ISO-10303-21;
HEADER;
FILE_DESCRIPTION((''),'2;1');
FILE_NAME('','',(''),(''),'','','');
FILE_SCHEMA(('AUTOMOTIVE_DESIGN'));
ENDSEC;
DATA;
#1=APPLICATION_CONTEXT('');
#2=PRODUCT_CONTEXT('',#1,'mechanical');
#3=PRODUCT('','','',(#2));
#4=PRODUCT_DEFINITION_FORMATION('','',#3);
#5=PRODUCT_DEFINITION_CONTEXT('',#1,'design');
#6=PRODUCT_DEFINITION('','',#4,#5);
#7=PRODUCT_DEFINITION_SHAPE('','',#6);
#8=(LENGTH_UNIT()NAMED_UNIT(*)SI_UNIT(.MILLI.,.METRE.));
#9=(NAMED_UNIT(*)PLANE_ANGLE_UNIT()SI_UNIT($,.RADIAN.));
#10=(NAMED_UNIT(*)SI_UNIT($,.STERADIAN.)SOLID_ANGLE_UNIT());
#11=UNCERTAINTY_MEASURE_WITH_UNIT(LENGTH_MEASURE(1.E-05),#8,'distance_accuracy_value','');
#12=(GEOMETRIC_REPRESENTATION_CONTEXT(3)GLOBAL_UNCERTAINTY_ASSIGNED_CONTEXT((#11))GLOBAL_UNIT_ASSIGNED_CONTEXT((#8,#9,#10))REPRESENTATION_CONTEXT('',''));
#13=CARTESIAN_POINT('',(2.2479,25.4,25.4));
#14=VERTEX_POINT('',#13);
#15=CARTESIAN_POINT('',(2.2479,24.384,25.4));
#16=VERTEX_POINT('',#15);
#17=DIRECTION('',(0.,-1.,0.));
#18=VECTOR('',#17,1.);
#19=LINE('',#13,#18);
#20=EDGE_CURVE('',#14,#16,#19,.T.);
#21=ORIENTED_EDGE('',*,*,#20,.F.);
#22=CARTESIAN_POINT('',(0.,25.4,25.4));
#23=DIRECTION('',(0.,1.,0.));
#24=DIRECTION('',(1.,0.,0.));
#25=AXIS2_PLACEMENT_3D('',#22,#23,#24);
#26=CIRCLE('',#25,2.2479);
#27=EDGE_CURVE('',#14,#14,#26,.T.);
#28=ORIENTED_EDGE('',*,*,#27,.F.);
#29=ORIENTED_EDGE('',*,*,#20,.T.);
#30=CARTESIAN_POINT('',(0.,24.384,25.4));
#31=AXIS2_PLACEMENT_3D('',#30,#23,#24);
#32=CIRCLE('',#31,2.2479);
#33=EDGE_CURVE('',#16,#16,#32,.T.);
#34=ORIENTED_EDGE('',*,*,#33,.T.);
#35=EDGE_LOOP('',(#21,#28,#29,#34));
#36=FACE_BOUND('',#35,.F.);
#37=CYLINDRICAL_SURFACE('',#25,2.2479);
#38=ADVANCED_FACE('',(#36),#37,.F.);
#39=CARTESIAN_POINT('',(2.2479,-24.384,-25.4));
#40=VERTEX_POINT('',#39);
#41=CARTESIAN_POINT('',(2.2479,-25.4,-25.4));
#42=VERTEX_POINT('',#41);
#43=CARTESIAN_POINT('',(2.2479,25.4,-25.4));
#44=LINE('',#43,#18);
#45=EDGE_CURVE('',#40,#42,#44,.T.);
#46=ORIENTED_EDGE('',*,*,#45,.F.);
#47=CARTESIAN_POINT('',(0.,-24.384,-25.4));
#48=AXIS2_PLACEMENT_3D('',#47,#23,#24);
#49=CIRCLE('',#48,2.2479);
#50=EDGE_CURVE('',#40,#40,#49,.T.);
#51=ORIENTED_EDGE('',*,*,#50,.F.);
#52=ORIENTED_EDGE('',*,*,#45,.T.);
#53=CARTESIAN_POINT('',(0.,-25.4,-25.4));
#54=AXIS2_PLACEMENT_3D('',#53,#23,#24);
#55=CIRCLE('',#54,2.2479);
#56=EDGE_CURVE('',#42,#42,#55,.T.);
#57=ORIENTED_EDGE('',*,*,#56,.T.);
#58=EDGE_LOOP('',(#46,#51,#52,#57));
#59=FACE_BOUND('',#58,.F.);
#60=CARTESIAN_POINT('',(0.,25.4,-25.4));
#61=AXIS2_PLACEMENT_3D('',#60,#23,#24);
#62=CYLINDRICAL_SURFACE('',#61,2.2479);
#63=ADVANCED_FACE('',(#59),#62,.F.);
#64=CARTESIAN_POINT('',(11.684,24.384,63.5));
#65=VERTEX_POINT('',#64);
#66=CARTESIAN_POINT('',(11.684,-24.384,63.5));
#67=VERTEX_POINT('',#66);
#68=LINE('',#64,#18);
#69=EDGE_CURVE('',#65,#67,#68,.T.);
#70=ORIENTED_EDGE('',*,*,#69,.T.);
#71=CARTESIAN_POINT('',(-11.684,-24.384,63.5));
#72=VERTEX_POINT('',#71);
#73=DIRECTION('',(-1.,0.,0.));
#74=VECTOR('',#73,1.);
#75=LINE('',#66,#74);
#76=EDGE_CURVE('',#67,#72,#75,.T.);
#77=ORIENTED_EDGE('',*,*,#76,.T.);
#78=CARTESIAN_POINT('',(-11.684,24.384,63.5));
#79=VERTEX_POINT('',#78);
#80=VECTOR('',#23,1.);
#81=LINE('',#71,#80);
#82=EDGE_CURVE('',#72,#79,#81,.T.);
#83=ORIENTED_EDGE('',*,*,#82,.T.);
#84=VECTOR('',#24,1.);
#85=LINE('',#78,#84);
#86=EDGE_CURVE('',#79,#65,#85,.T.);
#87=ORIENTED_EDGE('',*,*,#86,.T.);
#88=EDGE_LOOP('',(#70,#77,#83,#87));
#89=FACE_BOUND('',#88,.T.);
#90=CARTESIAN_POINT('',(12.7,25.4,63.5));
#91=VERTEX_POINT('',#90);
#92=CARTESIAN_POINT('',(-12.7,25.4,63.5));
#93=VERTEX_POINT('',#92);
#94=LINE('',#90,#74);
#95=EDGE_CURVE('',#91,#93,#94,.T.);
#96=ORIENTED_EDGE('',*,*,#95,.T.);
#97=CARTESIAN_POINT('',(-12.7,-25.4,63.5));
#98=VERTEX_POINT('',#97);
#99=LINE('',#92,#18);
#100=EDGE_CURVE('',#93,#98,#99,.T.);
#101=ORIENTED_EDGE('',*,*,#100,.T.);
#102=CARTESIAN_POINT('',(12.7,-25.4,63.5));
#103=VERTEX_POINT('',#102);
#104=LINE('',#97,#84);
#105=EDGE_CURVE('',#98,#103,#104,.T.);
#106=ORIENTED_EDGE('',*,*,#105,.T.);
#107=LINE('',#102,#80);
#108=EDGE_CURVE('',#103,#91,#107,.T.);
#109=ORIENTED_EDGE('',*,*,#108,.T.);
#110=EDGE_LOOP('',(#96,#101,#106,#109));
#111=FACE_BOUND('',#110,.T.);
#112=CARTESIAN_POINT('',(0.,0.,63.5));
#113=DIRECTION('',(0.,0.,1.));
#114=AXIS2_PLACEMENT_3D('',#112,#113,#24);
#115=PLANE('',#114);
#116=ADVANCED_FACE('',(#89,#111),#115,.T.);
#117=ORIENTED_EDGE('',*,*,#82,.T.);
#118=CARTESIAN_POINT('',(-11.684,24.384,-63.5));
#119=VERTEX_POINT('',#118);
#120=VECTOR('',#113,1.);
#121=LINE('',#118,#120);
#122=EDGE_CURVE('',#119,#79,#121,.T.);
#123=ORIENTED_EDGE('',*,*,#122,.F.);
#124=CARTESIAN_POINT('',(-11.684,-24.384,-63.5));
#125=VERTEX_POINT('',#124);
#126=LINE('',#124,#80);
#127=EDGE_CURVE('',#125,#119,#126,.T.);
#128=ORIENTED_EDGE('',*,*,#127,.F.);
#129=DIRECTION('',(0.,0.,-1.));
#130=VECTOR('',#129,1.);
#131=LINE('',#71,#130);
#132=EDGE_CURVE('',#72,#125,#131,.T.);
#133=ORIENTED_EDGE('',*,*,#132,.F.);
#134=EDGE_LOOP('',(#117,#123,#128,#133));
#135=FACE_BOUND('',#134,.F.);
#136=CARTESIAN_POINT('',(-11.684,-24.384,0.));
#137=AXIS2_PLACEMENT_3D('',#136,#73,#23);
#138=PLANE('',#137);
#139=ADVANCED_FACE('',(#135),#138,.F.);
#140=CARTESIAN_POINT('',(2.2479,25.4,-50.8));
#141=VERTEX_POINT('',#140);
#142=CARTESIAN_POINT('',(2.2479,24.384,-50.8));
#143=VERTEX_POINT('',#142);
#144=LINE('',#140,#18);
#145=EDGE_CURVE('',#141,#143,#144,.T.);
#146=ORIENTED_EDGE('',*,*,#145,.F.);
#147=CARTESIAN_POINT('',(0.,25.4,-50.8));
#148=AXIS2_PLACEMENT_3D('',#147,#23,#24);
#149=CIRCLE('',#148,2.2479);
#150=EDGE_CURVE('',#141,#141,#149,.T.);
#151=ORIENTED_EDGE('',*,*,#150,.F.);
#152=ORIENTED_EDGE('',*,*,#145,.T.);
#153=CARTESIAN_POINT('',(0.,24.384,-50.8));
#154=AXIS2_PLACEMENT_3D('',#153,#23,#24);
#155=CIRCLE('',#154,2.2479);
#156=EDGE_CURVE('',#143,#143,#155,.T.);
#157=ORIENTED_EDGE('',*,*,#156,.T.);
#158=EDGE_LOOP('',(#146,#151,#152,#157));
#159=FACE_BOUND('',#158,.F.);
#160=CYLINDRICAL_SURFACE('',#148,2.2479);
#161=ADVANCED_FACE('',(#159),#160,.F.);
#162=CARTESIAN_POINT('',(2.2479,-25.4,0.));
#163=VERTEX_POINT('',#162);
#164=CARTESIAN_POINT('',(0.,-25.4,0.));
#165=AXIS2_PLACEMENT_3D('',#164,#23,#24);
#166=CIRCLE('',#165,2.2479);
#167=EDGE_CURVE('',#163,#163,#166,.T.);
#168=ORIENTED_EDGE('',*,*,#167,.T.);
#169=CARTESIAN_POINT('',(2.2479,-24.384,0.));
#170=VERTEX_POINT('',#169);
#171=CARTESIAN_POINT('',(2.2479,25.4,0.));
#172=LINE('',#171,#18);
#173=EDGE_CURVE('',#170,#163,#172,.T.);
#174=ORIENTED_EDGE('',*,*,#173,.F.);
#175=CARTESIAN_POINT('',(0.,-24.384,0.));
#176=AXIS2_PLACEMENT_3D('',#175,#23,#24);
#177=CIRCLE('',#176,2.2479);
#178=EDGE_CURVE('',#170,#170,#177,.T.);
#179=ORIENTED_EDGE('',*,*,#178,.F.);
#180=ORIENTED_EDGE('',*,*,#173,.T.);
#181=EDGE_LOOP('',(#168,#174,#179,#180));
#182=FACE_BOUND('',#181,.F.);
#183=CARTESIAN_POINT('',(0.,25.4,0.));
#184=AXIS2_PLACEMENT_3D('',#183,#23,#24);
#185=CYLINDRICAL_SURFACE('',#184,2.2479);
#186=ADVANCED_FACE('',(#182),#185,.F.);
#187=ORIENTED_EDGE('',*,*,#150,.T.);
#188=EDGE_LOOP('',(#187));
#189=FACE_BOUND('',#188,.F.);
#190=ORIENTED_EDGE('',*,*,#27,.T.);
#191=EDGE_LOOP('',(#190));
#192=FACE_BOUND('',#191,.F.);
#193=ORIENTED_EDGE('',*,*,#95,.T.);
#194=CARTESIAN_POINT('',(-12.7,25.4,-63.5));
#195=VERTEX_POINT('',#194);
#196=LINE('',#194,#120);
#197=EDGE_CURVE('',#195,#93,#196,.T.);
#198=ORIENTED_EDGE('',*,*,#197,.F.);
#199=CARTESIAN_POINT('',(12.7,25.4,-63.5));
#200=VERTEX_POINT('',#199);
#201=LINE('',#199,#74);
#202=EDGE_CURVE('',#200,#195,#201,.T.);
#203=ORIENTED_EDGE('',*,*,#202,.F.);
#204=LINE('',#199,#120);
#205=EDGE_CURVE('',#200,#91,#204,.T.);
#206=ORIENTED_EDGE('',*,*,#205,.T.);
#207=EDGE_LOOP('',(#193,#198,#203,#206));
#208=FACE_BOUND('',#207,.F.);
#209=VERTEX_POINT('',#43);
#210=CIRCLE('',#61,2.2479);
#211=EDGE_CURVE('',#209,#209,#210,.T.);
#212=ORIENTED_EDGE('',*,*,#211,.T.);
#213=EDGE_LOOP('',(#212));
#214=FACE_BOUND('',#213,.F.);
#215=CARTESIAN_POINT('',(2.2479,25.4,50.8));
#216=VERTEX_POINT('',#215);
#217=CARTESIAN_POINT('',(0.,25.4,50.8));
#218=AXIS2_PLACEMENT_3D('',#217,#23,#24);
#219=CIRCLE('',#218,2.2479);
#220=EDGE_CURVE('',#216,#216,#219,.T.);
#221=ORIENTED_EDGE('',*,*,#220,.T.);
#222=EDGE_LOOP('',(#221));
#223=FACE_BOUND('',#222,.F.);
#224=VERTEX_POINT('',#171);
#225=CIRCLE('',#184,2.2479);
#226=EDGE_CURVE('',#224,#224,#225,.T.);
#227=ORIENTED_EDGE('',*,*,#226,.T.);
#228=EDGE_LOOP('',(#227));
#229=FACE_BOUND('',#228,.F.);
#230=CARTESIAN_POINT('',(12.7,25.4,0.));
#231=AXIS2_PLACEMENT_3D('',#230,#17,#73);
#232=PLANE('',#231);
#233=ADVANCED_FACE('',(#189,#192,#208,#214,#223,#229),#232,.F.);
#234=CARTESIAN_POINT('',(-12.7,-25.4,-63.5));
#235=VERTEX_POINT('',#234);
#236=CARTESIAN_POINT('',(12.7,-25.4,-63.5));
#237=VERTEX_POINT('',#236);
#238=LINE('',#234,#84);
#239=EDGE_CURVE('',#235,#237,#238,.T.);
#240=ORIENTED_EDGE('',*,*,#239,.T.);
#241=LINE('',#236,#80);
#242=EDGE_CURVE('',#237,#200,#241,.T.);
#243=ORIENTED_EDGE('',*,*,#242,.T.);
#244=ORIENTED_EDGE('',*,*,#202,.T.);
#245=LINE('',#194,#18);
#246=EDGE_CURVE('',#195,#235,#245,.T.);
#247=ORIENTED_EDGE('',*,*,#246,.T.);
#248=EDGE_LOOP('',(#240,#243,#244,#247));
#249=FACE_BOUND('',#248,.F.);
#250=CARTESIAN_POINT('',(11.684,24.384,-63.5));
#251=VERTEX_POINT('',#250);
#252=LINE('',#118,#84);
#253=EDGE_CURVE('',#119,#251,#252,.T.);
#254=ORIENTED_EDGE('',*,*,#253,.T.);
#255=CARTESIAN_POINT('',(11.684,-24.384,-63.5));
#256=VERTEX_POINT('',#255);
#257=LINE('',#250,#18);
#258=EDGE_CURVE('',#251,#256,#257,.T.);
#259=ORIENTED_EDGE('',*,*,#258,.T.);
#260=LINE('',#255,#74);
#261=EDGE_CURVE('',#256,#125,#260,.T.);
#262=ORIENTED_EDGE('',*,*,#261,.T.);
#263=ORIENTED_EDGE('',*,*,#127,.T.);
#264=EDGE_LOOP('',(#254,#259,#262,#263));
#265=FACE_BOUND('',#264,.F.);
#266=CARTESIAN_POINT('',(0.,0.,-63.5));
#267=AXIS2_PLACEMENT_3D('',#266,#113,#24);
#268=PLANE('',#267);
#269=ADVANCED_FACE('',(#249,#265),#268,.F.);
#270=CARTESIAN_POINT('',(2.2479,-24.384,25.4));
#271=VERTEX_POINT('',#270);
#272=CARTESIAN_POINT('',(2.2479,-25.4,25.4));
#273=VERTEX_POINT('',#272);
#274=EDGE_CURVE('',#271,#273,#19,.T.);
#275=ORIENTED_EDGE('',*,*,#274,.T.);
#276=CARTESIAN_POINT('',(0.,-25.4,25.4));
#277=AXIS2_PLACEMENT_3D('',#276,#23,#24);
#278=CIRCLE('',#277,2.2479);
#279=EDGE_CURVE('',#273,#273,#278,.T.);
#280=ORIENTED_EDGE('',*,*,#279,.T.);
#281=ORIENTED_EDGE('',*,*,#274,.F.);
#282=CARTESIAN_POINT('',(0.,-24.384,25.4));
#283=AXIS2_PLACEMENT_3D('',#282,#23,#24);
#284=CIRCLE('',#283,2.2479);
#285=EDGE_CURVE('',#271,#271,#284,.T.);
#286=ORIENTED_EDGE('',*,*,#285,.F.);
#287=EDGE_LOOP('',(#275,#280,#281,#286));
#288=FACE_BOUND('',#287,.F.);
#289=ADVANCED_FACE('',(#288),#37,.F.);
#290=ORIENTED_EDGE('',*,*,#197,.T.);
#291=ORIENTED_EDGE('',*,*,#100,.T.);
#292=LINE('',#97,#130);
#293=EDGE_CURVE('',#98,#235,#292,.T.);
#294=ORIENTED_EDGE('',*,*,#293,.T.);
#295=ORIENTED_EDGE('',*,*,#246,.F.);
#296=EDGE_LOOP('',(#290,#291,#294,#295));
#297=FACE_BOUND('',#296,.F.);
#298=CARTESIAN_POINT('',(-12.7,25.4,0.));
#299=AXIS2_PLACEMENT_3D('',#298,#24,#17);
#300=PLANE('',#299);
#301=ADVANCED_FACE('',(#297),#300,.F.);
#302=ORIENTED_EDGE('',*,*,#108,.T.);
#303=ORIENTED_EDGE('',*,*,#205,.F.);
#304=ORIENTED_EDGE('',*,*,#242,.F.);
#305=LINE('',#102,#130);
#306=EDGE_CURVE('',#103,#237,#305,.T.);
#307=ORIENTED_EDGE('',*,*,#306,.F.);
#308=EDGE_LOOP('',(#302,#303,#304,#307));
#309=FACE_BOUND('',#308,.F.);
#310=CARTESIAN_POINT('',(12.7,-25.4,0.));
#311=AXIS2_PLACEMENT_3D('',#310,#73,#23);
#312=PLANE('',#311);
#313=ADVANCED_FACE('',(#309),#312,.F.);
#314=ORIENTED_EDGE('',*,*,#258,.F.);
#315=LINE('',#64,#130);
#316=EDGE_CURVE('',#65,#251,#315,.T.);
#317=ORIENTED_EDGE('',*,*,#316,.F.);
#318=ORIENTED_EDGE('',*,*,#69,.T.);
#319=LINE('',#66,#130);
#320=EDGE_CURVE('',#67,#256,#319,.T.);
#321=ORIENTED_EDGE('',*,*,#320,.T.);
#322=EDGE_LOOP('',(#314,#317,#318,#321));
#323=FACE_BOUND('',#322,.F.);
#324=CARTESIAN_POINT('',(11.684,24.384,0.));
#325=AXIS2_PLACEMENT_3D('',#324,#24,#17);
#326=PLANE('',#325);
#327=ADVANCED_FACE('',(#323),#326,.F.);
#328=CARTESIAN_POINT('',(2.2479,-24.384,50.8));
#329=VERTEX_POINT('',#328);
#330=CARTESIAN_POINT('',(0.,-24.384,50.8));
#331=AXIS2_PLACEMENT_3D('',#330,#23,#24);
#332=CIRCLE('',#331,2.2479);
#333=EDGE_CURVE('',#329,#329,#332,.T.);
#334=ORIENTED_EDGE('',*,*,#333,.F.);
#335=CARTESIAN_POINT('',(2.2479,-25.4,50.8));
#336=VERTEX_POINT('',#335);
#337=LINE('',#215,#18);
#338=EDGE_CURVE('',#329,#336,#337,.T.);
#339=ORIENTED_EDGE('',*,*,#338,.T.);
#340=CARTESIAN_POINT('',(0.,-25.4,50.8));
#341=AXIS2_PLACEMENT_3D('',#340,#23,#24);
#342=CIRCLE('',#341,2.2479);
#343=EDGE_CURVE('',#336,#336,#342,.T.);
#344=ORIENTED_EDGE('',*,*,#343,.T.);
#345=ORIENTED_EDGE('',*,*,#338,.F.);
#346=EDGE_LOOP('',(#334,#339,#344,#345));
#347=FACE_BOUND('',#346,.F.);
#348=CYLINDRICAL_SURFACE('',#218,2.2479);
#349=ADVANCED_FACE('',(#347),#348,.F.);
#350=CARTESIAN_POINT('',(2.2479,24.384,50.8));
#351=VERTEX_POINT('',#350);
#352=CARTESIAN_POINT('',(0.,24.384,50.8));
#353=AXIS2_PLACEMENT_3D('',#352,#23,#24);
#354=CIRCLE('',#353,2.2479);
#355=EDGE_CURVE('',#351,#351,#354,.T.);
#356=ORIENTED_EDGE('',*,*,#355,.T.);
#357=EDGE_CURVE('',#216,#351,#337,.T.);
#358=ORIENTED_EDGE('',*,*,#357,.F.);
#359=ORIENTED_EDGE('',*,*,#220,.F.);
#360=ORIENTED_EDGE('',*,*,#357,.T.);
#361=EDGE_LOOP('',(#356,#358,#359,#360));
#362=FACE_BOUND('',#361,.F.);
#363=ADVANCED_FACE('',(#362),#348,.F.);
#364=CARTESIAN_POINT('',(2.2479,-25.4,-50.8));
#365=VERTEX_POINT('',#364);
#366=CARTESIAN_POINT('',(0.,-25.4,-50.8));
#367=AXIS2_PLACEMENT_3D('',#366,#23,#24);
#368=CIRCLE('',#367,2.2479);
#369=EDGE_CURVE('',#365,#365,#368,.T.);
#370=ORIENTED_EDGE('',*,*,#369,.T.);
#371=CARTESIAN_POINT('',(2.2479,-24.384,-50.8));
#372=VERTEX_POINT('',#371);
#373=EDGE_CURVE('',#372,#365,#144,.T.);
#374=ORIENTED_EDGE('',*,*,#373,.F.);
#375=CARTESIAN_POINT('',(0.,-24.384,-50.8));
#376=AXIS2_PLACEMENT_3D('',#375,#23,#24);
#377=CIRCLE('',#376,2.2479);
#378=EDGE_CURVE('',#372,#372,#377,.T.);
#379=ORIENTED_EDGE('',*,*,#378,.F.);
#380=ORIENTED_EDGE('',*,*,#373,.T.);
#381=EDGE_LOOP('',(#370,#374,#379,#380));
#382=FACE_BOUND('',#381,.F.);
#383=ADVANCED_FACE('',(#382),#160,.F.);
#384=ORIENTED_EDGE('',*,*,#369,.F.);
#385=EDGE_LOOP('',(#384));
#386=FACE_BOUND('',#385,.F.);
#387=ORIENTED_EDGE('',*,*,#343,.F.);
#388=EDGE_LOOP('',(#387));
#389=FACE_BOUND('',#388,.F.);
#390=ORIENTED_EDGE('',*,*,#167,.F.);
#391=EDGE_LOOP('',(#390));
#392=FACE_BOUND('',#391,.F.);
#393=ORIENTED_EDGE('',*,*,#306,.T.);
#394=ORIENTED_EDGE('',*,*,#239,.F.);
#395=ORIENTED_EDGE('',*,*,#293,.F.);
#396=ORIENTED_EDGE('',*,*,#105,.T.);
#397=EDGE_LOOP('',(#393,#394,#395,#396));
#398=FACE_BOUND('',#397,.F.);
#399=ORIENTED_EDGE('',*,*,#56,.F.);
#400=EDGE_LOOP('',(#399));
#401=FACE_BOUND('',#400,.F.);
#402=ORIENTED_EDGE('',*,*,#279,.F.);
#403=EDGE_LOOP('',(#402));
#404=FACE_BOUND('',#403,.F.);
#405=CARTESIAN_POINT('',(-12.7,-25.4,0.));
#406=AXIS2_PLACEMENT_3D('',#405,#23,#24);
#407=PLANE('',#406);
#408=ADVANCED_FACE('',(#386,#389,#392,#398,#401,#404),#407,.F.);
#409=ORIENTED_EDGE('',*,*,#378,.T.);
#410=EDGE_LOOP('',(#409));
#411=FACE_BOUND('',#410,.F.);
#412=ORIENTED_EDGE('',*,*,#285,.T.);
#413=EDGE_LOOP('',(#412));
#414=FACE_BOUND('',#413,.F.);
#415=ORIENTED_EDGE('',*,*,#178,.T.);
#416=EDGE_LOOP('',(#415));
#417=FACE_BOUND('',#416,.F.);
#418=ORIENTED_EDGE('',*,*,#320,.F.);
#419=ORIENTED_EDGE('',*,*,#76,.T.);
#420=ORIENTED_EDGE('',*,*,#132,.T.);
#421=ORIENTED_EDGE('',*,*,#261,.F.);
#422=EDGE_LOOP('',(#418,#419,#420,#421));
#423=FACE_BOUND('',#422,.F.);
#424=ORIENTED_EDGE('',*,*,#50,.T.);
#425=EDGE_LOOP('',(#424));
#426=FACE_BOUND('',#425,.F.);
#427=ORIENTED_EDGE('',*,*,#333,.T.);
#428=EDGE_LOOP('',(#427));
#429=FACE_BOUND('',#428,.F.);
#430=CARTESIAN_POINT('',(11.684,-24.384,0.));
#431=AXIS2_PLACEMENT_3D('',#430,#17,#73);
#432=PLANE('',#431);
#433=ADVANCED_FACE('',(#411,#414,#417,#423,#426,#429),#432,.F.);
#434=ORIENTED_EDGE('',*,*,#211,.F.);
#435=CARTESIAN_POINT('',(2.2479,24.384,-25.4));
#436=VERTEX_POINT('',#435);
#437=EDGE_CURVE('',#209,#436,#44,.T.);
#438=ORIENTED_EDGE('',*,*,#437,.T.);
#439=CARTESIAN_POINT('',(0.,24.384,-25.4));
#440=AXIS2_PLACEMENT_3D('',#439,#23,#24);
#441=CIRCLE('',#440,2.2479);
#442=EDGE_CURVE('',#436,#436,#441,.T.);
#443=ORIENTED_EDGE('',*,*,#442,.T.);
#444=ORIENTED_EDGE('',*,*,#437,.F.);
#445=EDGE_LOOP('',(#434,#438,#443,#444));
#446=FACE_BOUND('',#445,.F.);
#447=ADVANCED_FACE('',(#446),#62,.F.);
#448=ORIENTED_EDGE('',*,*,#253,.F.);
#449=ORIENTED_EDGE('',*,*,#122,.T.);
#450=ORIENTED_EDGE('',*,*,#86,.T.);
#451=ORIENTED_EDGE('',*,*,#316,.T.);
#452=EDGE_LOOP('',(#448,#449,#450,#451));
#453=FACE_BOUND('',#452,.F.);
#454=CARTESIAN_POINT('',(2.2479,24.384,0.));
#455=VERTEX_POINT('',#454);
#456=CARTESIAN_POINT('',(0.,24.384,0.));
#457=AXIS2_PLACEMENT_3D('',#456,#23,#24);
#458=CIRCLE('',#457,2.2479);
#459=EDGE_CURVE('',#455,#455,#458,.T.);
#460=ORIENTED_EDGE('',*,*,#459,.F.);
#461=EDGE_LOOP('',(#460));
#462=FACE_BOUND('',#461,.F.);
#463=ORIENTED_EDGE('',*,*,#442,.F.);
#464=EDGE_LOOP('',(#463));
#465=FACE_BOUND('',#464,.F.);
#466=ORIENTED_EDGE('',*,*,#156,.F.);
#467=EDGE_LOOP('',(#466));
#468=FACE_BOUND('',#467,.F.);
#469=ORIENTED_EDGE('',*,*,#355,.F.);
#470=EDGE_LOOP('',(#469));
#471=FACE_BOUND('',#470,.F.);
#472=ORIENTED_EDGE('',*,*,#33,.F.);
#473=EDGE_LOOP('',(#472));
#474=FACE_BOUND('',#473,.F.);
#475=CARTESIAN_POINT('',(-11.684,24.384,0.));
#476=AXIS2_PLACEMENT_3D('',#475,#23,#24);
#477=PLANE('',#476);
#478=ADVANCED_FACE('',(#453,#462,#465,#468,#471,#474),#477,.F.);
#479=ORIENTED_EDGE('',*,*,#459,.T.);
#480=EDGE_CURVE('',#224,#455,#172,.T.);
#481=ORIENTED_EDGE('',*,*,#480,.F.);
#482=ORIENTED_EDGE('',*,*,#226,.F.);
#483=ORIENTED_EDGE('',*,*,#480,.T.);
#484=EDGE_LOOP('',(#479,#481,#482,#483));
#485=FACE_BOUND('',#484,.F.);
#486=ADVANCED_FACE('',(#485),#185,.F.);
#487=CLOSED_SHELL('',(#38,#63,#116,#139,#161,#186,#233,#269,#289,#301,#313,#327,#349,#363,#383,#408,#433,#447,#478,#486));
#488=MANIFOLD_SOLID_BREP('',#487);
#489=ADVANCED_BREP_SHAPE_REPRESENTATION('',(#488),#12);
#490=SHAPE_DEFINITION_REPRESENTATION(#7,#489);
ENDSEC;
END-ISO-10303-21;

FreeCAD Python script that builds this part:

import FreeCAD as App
import Part
import Sketcher
Q = App.Units.Quantity

doc = App.newDocument("Part")
body = doc.addObject("PartDesign::Body", "Body")

# Sketch on XY plane
sketch1 = body.newObject("Sketcher::SketchObject", "Sketch")
sketch1.AttachmentSupport = (doc.getObject("XY_Plane"), [""])
sketch1.MapMode = "FlatFace"
sketch1.addGeometry([
    Part.LineSegment(App.Vector(13, -25, 0), App.Vector(13, 25, 0)),  # 0
    Part.LineSegment(App.Vector(13, 25, 0), App.Vector(-13, 25, 0)),  # 1
    Part.LineSegment(App.Vector(-13, 25, 0), App.Vector(-13, -25, 0)),  # 2
    Part.LineSegment(App.Vector(-13, -25, 0), App.Vector(13, -25, 0)),  # 3
    Part.LineSegment(App.Vector(-12, -24, 0), App.Vector(-12, 24, 0)),  # 4
    Part.LineSegment(App.Vector(-12, 24, 0), App.Vector(12, 24, 0)),  # 5
    Part.LineSegment(App.Vector(12, 24, 0), App.Vector(12, -24, 0)),  # 6
    Part.LineSegment(App.Vector(12, -24, 0), App.Vector(-12, -24, 0)),  # 7
], False)
sketch1.addConstraint([
    Sketcher.Constraint("Coincident", 0, 2, 1, 1),
    Sketcher.Constraint("Coincident", 1, 2, 2, 1),
    Sketcher.Constraint("Coincident", 2, 2, 3, 1),
    Sketcher.Constraint("Coincident", 3, 2, 0, 1),
    Sketcher.Constraint("Coincident", 4, 2, 5, 1),
    Sketcher.Constraint("Coincident", 5, 2, 6, 1),
    Sketcher.Constraint("Coincident", 6, 2, 7, 1),
    Sketcher.Constraint("Coincident", 7, 2, 4, 1),
    Sketcher.Constraint("Vertical", 0),
    Sketcher.Constraint("Horizontal", 1),
    Sketcher.Constraint("Vertical", 2),
    Sketcher.Constraint("Horizontal", 3),
    Sketcher.Constraint("Vertical", 4),
    Sketcher.Constraint("Horizontal", 5),
    Sketcher.Constraint("Vertical", 6),
    Sketcher.Constraint("Horizontal", 7),
    Sketcher.Constraint("Symmetric", 0, 2, 2, 2, -1, 1),
    Sketcher.Constraint("Symmetric", 4, 2, 6, 2, -1, 1),
    Sketcher.Constraint("DistanceX", 1, 2, 1, 1, Q("1 in")),
    Sketcher.Constraint("DistanceY", 0, 1, 0, 2, Q("2 in")),
    Sketcher.Constraint("DistanceX", 1, 2, 4, 2, Q("0.04 in")),
    Sketcher.Constraint("DistanceY", 4, 2, 1, 2, Q("0.04 in")),
])
pad1 = body.newObject("PartDesign::Pad", "Pad")
pad1.Profile = sketch1
pad1.Length = Q("5 in")
pad1.Midplane = True

# Sketch on XZ plane
sketch2 = body.newObject("Sketcher::SketchObject", "Sketch001")
sketch2.AttachmentSupport = (doc.getObject("XZ_Plane"), [""])
sketch2.MapMode = "FlatFace"
sketch2.AttachmentOffset = App.Placement(App.Vector(0, 0, -1 * 25.4), App.Rotation())
sketch2.addGeometry(Part.Circle(App.Vector(0, 50.8, 0), App.Vector(0, 0, 1), 2.2), False)
sketch2.addConstraint([
    Sketcher.Constraint("PointOnObject", 0, 3, -2),
    Sketcher.Constraint("Diameter", 0, Q("0.177 in")),
    Sketcher.Constraint("DistanceY", -1, 1, 0, 3, Q("2 in")),
])
pocket1 = body.newObject("PartDesign::Pocket", "Pocket")
pocket1.Profile = sketch2
pocket1.Type = "ThroughAll"
pocket1.Reversed = True
doc.recompute()

linearpattern = body.newObject("PartDesign::LinearPattern", "LinearPattern")
linearpattern.Originals = [pocket1]
linearpattern.Direction = (doc.getObject("Z_Axis"), [""])
linearpattern.Mode = "offset"
linearpattern.Offset = Q("1 in")
linearpattern.Occurrences = 5
linearpattern.Reversed = True
body.Tip = linearpattern

doc.recompute()
